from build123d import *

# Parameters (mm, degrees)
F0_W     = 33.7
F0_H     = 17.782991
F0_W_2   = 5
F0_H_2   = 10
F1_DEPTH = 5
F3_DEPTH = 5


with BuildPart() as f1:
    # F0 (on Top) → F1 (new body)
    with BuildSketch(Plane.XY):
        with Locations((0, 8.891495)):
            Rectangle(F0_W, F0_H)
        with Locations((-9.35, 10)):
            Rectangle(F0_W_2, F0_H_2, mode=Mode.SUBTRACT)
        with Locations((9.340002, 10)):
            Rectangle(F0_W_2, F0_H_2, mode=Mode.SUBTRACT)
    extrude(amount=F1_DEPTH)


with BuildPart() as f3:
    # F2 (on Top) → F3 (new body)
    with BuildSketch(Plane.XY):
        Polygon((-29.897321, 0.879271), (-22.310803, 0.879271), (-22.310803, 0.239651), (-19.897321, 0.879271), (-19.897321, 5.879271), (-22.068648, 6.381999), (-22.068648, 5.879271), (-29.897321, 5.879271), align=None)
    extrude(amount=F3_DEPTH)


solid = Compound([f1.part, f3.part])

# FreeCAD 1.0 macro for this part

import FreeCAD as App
import Part
import Sketcher

V = App.Vector

doc = App.newDocument("Part")
params = doc.addObject("Spreadsheet::Sheet", "Params")
for row, (alias, value) in enumerate([
    ("sketch1_width", "5 mm"),
    ("sketch1_height", "10 mm"),
    ("sketch1_width2", "33.7 mm"),
    ("pad1_length", "5 mm"),
    ("sketch2_height", "5 mm"),
    ("pad2_length", "5 mm"),
], start=1):
    params.set(f"A{row}", alias)
    params.set(f"B{row}", "=" + value)
    params.setAlias(f"B{row}", alias)

body = doc.addObject("PartDesign::Body", "Body")

# Sketch on XY plane
sketch1 = body.newObject("Sketcher::SketchObject", "Sketch")
sketch1.AttachmentSupport = (doc.getObject("XY_Plane"), [""])
sketch1.MapMode = "FlatFace"
sketch1.addGeometry(Part.LineSegment(V(-17, 18, 0), V(-17, 0, 0)), False)
sketch1.addGeometry(Part.LineSegment(V(-17, 0, 0), V(17, 0, 0)), False)
sketch1.addGeometry(Part.LineSegment(V(17, 0, 0), V(17, 18, 0)), False)
sketch1.addGeometry(Part.LineSegment(V(17, 18, 0), V(-17, 18, 0)), False)
sketch1.addGeometry(Part.LineSegment(V(-7, 5, 0), V(-12, 5, 0)), False)
sketch1.addGeometry(Part.LineSegment(V(-12, 5, 0), V(-12, 15, 0)), False)
sketch1.addGeometry(Part.LineSegment(V(-12, 15, 0), V(-7, 15, 0)), False)
sketch1.addGeometry(Part.LineSegment(V(-7, 15, 0), V(-7, 5, 0)), False)
sketch1.addGeometry(Part.LineSegment(V(12, 5, 0), V(7, 5, 0)), False)
sketch1.addGeometry(Part.LineSegment(V(7, 5, 0), V(7, 15, 0)), False)
sketch1.addGeometry(Part.LineSegment(V(7, 15, 0), V(12, 15, 0)), False)
sketch1.addGeometry(Part.LineSegment(V(12, 15, 0), V(12, 5, 0)), False)
sketch1.addConstraint(Sketcher.Constraint("Coincident", 0, 2, 1, 1))
sketch1.addConstraint(Sketcher.Constraint("Coincident", 1, 2, 2, 1))
sketch1.addConstraint(Sketcher.Constraint("Coincident", 2, 2, 3, 1))
sketch1.addConstraint(Sketcher.Constraint("Coincident", 3, 2, 0, 1))
sketch1.addConstraint(Sketcher.Constraint("Coincident", 4, 2, 5, 1))
sketch1.addConstraint(Sketcher.Constraint("Coincident", 5, 2, 6, 1))
sketch1.addConstraint(Sketcher.Constraint("Coincident", 6, 2, 7, 1))
sketch1.addConstraint(Sketcher.Constraint("Coincident", 7, 2, 4, 1))
sketch1.addConstraint(Sketcher.Constraint("Coincident", 8, 2, 9, 1))
sketch1.addConstraint(Sketcher.Constraint("Coincident", 9, 2, 10, 1))
sketch1.addConstraint(Sketcher.Constraint("Coincident", 10, 2, 11, 1))
sketch1.addConstraint(Sketcher.Constraint("Coincident", 11, 2, 8, 1))
sketch1.addConstraint(Sketcher.Constraint("Vertical", 0))
sketch1.addConstraint(Sketcher.Constraint("Horizontal", 1))
sketch1.addConstraint(Sketcher.Constraint("Vertical", 2))
sketch1.addConstraint(Sketcher.Constraint("Horizontal", 3))
sketch1.addConstraint(Sketcher.Constraint("Horizontal", 4))
sketch1.addConstraint(Sketcher.Constraint("Vertical", 5))
sketch1.addConstraint(Sketcher.Constraint("Horizontal", 6))
sketch1.addConstraint(Sketcher.Constraint("Vertical", 7))
sketch1.addConstraint(Sketcher.Constraint("Horizontal", 8))
sketch1.addConstraint(Sketcher.Constraint("Vertical", 9))
sketch1.addConstraint(Sketcher.Constraint("Horizontal", 10))
sketch1.addConstraint(Sketcher.Constraint("Vertical", 11))
sketch1.addConstraint(Sketcher.Constraint("Symmetric", 0, 2, 1, 2, -1, 1))
sketch1.addConstraint(Sketcher.Constraint("Horizontal", 7, 2, 8, 2))
sketch1.addConstraint(Sketcher.Constraint("Horizontal", 6, 2, 9, 2))
sketch1.addConstraint(Sketcher.Constraint("Equal", 6, 8))
sketch1.addConstraint(Sketcher.Constraint("DistanceX", 4, 2, 4, 1, 5.0))
sketch1.addConstraint(Sketcher.Constraint("DistanceY", 5, 1, 5, 2, 10.0))
sketch1.addConstraint(Sketcher.Constraint("DistanceX", 1, 1, 1, 2, 33.7))
sketch1.addConstraint(Sketcher.Constraint("DistanceY", -1, 1, 4, 2, 5.0))
sketch1.addConstraint(Sketcher.Constraint("DistanceX", 0, 2, 4, 2, 5.0))
sketch1.addConstraint(Sketcher.Constraint("DistanceX", 8, 2, 1, 2, 10.009998))
sketch1.addConstraint(Sketcher.Constraint("DistanceY", 0, 2, 0, 1, 17.782991))
sketch1.setExpression("Constraints[28]", "Params.sketch1_width")
sketch1.setExpression("Constraints[29]", "Params.sketch1_height")
sketch1.setExpression("Constraints[30]", "Params.sketch1_width2")
pad1 = body.newObject("PartDesign::Pad", "Pad")
pad1.Profile = sketch1
pad1.setExpression("Length", "Params.pad1_length")
body2 = doc.addObject("PartDesign::Body", "Body001")

# Sketch on XY plane
sketch2 = body2.newObject("Sketcher::SketchObject", "Sketch001")
sketch2.AttachmentSupport = (doc.getObject("XY_Plane001"), [""])
sketch2.MapMode = "FlatFace"
sketch2.addGeometry(Part.LineSegment(V(-29.9, 0.9, 0), V(-22.3, 0.9, 0)), False)
sketch2.addGeometry(Part.LineSegment(V(-22.3, 0.9, 0), V(-22.3, 0.2, 0)), False)
sketch2.addGeometry(Part.LineSegment(V(-22.3, 0.2, 0), V(-19.9, 0.9, 0)), False)
sketch2.addGeometry(Part.LineSegment(V(-19.9, 0.9, 0), V(-19.9, 5.9, 0)), False)
sketch2.addGeometry(Part.LineSegment(V(-19.9, 5.9, 0), V(-22.1, 6.4, 0)), False)
sketch2.addGeometry(Part.LineSegment(V(-22.1, 6.4, 0), V(-22.1, 5.9, 0)), False)
sketch2.addGeometry(Part.LineSegment(V(-22.1, 5.9, 0), V(-29.9, 5.9, 0)), False)
sketch2.addGeometry(Part.LineSegment(V(-29.9, 5.9, 0), V(-29.9, 0.9, 0)), False)
sketch2.addConstraint(Sketcher.Constraint("Coincident", 0, 2, 1, 1))
sketch2.addConstraint(Sketcher.Constraint("Coincident", 1, 2, 2, 1))
sketch2.addConstraint(Sketcher.Constraint("Coincident", 2, 2, 3, 1))
sketch2.addConstraint(Sketcher.Constraint("Coincident", 3, 2, 4, 1))
sketch2.addConstraint(Sketcher.Constraint("Coincident", 4, 2, 5, 1))
sketch2.addConstraint(Sketcher.Constraint("Coincident", 5, 2, 6, 1))
sketch2.addConstraint(Sketcher.Constraint("Coincident", 6, 2, 7, 1))
sketch2.addConstraint(Sketcher.Constraint("Coincident", 7, 2, 0, 1))
sketch2.addConstraint(Sketcher.Constraint("Horizontal", 0))
sketch2.addConstraint(Sketcher.Constraint("Vertical", 1))
sketch2.addConstraint(Sketcher.Constraint("Vertical", 3))
sketch2.addConstraint(Sketcher.Constraint("Vertical", 5))
sketch2.addConstraint(Sketcher.Constraint("Horizontal", 6))
sketch2.addConstraint(Sketcher.Constraint("Vertical", 7))
sketch2.addConstraint(Sketcher.Constraint("Horizontal", 0, 2, 2, 2))
sketch2.addConstraint(Sketcher.Constraint("Horizontal", 3, 2, 5, 2))
sketch2.addConstraint(Sketcher.Constraint("DistanceY", 3, 1, 3, 2, 5.0))
sketch2.addConstraint(Sketcher.Constraint("DistanceX", 6, 2, 3, 2, 10.0))
sketch2.addConstraint(Sketcher.Constraint("DistanceY", -1, 1, 4, 2, 6.381999))
sketch2.addConstraint(Sketcher.Constraint("Distance", 2, 2.4968))
sketch2.addConstraint(Sketcher.Constraint("DistanceX", 0, 1, 0, 2, 7.586518))
sketch2.addConstraint(Sketcher.Constraint("DistanceY", 5, 2, 5, 1, 0.502728))
sketch2.addConstraint(Sketcher.Constraint("DistanceX", 6, 2, 6, 1, 7.828673))
sketch2.addConstraint(Sketcher.Constraint("DistanceX", 2, 2, -1, 1, 19.897321))
sketch2.setExpression("Constraints[16]", "Params.sketch2_height")
pad2 = body2.newObject("PartDesign::Pad", "Pad001")
pad2.Profile = sketch2
pad2.setExpression("Length", "Params.pad2_length")

doc.recompute()
